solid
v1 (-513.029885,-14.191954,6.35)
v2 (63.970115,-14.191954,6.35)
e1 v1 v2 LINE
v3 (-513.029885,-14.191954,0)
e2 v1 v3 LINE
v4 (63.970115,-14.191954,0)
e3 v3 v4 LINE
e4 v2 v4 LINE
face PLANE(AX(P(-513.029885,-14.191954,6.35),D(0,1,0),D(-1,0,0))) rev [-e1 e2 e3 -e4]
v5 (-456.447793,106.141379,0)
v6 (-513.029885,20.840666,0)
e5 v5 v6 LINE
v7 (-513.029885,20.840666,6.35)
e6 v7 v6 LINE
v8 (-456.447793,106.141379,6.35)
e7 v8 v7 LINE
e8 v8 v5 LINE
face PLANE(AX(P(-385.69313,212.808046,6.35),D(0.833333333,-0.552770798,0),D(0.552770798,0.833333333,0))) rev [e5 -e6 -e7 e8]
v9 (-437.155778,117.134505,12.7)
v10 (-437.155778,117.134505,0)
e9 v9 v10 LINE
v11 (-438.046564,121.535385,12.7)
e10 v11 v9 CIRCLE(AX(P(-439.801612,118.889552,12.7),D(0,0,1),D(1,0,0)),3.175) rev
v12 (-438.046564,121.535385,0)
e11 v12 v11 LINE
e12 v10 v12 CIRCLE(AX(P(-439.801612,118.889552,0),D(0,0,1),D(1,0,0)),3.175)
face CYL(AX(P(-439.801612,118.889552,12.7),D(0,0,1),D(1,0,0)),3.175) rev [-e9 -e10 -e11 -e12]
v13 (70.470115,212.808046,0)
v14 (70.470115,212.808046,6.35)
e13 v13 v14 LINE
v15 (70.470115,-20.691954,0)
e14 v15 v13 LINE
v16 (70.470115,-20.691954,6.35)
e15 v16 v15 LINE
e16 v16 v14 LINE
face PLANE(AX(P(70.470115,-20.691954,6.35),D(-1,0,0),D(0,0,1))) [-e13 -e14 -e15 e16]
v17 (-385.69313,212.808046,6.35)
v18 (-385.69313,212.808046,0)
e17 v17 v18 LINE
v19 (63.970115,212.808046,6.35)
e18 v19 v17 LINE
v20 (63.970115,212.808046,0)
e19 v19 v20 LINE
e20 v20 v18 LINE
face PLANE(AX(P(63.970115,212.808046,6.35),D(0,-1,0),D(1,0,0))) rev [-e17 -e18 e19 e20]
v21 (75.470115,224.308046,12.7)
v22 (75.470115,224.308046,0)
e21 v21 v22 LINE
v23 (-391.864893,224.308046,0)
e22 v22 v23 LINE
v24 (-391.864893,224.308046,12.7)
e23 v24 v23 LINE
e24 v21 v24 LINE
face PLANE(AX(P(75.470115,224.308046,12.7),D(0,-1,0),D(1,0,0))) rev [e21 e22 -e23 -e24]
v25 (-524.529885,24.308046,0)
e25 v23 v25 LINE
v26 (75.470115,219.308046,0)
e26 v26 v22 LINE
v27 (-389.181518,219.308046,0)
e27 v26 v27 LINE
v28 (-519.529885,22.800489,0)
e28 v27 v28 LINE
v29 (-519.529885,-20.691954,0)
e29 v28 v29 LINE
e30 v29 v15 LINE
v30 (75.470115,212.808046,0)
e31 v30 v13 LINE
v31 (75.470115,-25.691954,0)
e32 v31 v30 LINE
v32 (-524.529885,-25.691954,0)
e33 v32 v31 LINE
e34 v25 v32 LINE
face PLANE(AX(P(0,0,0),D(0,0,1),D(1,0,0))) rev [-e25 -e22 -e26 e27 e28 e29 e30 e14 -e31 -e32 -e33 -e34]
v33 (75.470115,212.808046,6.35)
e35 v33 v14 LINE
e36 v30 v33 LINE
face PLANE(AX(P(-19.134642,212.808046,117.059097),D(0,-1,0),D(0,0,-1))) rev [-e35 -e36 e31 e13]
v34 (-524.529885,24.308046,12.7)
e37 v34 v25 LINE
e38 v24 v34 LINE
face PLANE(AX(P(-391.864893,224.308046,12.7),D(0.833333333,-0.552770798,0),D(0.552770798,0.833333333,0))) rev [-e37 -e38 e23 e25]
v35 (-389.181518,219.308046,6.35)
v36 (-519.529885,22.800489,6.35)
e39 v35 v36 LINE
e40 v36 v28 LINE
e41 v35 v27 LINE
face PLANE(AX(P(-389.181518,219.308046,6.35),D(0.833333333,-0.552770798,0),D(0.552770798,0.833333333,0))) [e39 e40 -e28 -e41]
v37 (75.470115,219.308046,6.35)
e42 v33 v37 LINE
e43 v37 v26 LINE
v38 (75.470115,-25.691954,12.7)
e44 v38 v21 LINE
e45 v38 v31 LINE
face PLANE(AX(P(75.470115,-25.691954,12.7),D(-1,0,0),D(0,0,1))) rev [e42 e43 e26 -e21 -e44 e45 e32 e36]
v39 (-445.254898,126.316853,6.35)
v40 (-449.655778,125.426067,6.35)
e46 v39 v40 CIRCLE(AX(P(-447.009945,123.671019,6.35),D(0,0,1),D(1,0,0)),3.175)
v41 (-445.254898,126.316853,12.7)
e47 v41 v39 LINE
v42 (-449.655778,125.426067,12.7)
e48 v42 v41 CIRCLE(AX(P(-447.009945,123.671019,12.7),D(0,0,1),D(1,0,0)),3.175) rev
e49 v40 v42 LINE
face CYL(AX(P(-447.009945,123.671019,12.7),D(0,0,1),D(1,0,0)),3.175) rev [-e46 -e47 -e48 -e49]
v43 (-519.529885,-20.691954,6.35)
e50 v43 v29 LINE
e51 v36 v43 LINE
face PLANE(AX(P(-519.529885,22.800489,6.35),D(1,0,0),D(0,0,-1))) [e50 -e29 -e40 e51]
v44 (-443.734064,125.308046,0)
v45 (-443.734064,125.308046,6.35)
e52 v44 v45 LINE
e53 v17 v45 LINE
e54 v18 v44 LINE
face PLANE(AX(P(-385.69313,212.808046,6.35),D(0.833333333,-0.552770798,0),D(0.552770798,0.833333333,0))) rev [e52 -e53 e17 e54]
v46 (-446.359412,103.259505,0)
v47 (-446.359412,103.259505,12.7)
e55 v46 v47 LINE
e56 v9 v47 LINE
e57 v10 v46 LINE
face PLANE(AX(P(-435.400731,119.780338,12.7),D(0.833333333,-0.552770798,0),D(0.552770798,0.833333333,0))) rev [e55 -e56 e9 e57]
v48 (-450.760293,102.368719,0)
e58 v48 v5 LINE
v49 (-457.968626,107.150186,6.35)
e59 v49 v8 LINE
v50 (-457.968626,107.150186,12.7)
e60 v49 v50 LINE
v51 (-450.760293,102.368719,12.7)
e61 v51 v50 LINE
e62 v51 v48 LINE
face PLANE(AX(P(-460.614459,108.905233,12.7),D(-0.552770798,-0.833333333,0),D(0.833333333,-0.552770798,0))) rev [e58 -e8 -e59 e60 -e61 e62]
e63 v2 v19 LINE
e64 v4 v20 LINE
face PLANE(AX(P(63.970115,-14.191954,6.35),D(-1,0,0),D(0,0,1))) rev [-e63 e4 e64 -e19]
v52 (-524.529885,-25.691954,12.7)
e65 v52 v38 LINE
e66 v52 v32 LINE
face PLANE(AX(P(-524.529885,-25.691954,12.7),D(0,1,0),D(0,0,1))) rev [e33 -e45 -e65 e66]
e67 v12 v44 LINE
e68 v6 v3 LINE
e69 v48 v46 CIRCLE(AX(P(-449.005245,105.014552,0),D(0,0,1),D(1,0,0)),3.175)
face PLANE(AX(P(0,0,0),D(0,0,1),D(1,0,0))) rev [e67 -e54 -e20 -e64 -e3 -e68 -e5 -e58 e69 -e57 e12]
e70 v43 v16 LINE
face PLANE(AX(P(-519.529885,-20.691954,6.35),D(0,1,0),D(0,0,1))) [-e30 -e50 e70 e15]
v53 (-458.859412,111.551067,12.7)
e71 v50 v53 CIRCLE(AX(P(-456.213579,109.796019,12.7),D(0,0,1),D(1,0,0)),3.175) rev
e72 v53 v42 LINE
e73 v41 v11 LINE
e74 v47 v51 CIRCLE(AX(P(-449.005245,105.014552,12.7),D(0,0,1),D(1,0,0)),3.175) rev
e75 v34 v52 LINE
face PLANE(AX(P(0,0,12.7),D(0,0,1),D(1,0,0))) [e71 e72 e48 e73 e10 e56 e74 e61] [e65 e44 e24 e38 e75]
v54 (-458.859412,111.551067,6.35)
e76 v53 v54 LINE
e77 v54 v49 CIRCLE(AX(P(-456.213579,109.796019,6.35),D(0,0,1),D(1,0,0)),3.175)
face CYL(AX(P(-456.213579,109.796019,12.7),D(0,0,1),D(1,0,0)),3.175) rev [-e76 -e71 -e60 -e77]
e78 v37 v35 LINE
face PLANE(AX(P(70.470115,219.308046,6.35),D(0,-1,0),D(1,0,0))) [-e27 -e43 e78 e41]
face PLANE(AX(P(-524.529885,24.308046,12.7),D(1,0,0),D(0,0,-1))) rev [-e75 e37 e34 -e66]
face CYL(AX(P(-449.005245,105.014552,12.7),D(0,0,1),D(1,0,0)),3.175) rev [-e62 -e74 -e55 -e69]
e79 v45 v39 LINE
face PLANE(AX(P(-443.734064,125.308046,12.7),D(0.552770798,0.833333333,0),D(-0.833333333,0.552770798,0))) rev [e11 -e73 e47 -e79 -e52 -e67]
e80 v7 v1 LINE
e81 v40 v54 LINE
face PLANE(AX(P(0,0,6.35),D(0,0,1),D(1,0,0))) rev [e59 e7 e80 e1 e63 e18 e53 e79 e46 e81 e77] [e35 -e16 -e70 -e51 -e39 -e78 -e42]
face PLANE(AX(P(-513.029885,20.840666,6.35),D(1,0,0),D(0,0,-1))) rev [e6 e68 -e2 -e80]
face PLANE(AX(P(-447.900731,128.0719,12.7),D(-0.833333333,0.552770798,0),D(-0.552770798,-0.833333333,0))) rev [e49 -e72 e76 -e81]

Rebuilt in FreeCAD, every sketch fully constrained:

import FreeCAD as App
import Part
import Sketcher
Q = App.Units.Quantity


def edges_at(feature, points):
    """Names of the edges that pass closest to the given points."""
    edges = feature.Shape.Edges
    near = lambda p: min(range(len(edges)), key=lambda i: edges[i].distToShape(Part.Vertex(*p))[0])
    return sorted({f"Edge{near(p) + 1}" for p in points})


def add_polygon(sketch, points):
    """Adds a closed chain of lines whose ends are joined by coincident constraints."""
    first, n = sketch.GeometryCount, len(points)
    for a, b in zip(points, points[1:] + points[:1]):
        sketch.addGeometry(Part.LineSegment(App.Vector(*a, 0), App.Vector(*b, 0)), False)
    for i in range(n):
        sketch.addConstraint(Sketcher.Constraint("Coincident", first + i, 2, first + (i + 1) % n, 1))

doc = App.newDocument("Part")
params = doc.addObject("Spreadsheet::Sheet", "Params")
for row, (alias, value) in enumerate([
    ("sketch1_width", "600 mm"),
    ("sketch1_height", "250 mm"),
    ("sketch1_height2", "50 mm"),
    ("sketch1_length", "240 mm"),
    ("pad1_length", "12.7 mm"),
    ("sketch2_width", "590 mm"),
    ("sketch2_width2", "577 mm"),
    ("sketch2_height", "240 mm"),
    ("sketch2_height2", "227 mm"),
    ("pocket1_length", "6.35 mm"),
    ("sketch3_length", "10 mm"),
    ("sketch3_length2", "23 mm"),
    ("sketch3_length3", "5 mm"),
    ("fillet_radius", "3.175 mm"),
    ("sketch4_height", "6.5 mm"),
    ("pocket3_length", "6.35 mm"),
], start=1):
    params.set(f"A{row}", alias)
    params.set(f"B{row}", "=" + value)
    params.setAlias(f"B{row}", alias)

body = doc.addObject("PartDesign::Body", "Body")

# Sketch on XY plane
sketch1 = doc.addObject("Sketcher::SketchObject", "Sketch")
body.addObject(sketch1)
sketch1.AttachmentSupport = (doc.XY_Plane, [""])
sketch1.MapMode = "FlatFace"
add_polygon(sketch1, [(-525, -26), (75, -26), (75, 224), (-392, 224), (-525, 24)])  # lines 0-4
sketch1.addConstraint([
    Sketcher.Constraint("Horizontal", 0),
    Sketcher.Constraint("Vertical", 1),
    Sketcher.Constraint("Horizontal", 2),
    Sketcher.Constraint("Vertical", 4),
    Sketcher.Constraint("DistanceX", 0, 1, 0, 2, Q("600 mm")),
    Sketcher.Constraint("DistanceY", 1, 1, 1, 2, Q("250 mm")),
    Sketcher.Constraint("DistanceY", 4, 2, 4, 1, Q("50 mm")),
    Sketcher.Constraint("Distance", 3, Q("240 mm")),
    Sketcher.Constraint("DistanceX", -1, 1, 0, 2, Q("75.470115 mm")),
    Sketcher.Constraint("DistanceY", 0, 2, -1, 1, Q("25.691954 mm")),
])
sketch1.setExpression("Constraints[9]", "Params.sketch1_width")
sketch1.setExpression("Constraints[10]", "Params.sketch1_height")
sketch1.setExpression("Constraints[11]", "Params.sketch1_height2")
sketch1.setExpression("Constraints[12]", "Params.sketch1_length")
pad1 = doc.addObject("PartDesign::Pad", "Pad")
body.addObject(pad1)
pad1.Profile = sketch1
pad1.setExpression("Length", "Params.pad1_length")

# Sketch on XY plane
sketch2 = doc.addObject("Sketcher::SketchObject", "Sketch001")
body.addObject(sketch2)
sketch2.AttachmentSupport = (doc.XY_Plane, [""])
sketch2.MapMode = "FlatFace"
add_polygon(sketch2, [(-520, 23), (-520, -21), (70, -21), (70, 219), (-389, 219)])  # lines 0-4
add_polygon(sketch2, [(-513, -14), (-513, 21), (-386, 213), (64, 213), (64, -14)])  # lines 5-9
sketch2.addConstraint([
    Sketcher.Constraint("Vertical", 0),
    Sketcher.Constraint("Horizontal", 1),
    Sketcher.Constraint("Vertical", 2),
    Sketcher.Constraint("Horizontal", 3),
    Sketcher.Constraint("Vertical", 5),
    Sketcher.Constraint("Horizontal", 7),
    Sketcher.Constraint("Vertical", 8),
    Sketcher.Constraint("Horizontal", 9),
    Sketcher.Constraint("Parallel", 4, 6),
    Sketcher.Constraint("DistanceX", 1, 1, 1, 2, Q("590 mm")),
    Sketcher.Constraint("DistanceX", 9, 2, 9, 1, Q("577 mm")),
    Sketcher.Constraint("DistanceY", 2, 1, 2, 2, Q("240 mm")),
    Sketcher.Constraint("DistanceY", 8, 2, 8, 1, Q("227 mm")),
    Sketcher.Constraint("DistanceX", 4, 2, 5, 2, Q("6.5 mm")),
    Sketcher.Constraint("DistanceY", 6, 2, 3, 2, Q("6.5 mm")),
    Sketcher.Constraint("DistanceY", 5, 1, 5, 2, Q("35.03262 mm")),
    Sketcher.Constraint("Distance", 4, Q("235.809068 mm")),
    Sketcher.Constraint("DistanceX", 3, 2, 3, 1, Q("459.651633 mm")),
    Sketcher.Constraint("DistanceX", 3, 2, -1, 1, Q("389.181518 mm")),
    Sketcher.Constraint("DistanceY", -1, 1, 4, 2, Q("22.800489 mm")),
])
sketch2.setExpression("Constraints[19]", "Params.sketch2_width")
sketch2.setExpression("Constraints[20]", "Params.sketch2_width2")
sketch2.setExpression("Constraints[21]", "Params.sketch2_height")
sketch2.setExpression("Constraints[22]", "Params.sketch2_height2")
pocket1 = doc.addObject("PartDesign::Pocket", "Pocket")
body.addObject(pocket1)
pocket1.Profile = sketch2
pocket1.setExpression("Length", "Params.pocket1_length")
pocket1.Reversed = True

# Sketch on XY plane
sketch3 = doc.addObject("Sketcher::SketchObject", "Sketch002")
body.addObject(sketch3)
sketch3.AttachmentSupport = (doc.XY_Plane, [""])
sketch3.MapMode = "FlatFace"
add_polygon(sketch3, [(-444, 125), (-435, 120), (-448, 101), (-456, 106), (-461, 109), (-448, 128)])  # lines 0-5
sketch3.addConstraint([
    Sketcher.Constraint("Perpendicular", 0, 1),
    Sketcher.Constraint("Perpendicular", 1, 2),
    Sketcher.Constraint("Parallel", 2, 3),
    Sketcher.Constraint("Perpendicular", 3, 4),
    Sketcher.Constraint("Perpendicular", 4, 5),
    Sketcher.Constraint("Equal", 0, 2),
    Sketcher.Constraint("Distance", 0, Q("10 mm")),
    Sketcher.Constraint("Distance", 1, Q("23 mm")),
    Sketcher.Constraint("Distance", 3, Q("5 mm")),
    Sketcher.Constraint("DistanceX", 3, 2, 1, 2, Q("12.5 mm")),
    Sketcher.Constraint("DistanceY", -1, 1, 4, 2, Q("128.0719 mm")),
    Sketcher.Constraint("DistanceX", 0, 2, -1, 1, Q("435.400731 mm")),
])
sketch3.setExpression("Constraints[12]", "Params.sketch3_length")
sketch3.setExpression("Constraints[13]", "Params.sketch3_length2")
sketch3.setExpression("Constraints[14]", "Params.sketch3_length3")
pocket2 = doc.addObject("PartDesign::Pocket", "Pocket001")
body.addObject(pocket2)
pocket2.Profile = sketch3
pocket2.Type = "ThroughAll"
pocket2.Reversed = True
doc.recompute()

fillet = doc.addObject("PartDesign::Fillet", "Fillet")
body.addObject(fillet)
fillet.Base = (pocket2, edges_at(pocket2, [
    (-447.901, 128.072, 9.525),
    (-460.614, 108.905, 9.525),
    (-435.401, 119.78, 6.35),
    (-448.114, 100.614, 6.35),
]))
fillet.setExpression("Radius", "Params.fillet_radius")

# Sketch on XY plane
sketch4 = doc.addObject("Sketcher::SketchObject", "Sketch003")
body.addObject(sketch4)
sketch4.AttachmentSupport = (doc.XY_Plane, [""])
sketch4.MapMode = "FlatFace"
add_polygon(sketch4, [(91, 219), (91, 213), (-19, 213), (-19, 219)])  # lines 0-3
sketch4.addConstraint([
    Sketcher.Constraint("Vertical", 0),
    Sketcher.Constraint("Horizontal", 1),
    Sketcher.Constraint("Vertical", 2),
    Sketcher.Constraint("Horizontal", 3),
    Sketcher.Constraint("DistanceY", 0, 2, 0, 1, Q("6.5 mm")),
    Sketcher.Constraint("DistanceX", 1, 2, 1, 1, Q("110.518117 mm")),
    Sketcher.Constraint("DistanceX", 1, 2, -1, 1, Q("19.134642 mm")),
    Sketcher.Constraint("DistanceY", -1, 1, 0, 2, Q("212.808046 mm")),
])
sketch4.setExpression("Constraints[8]", "Params.sketch4_height")
pocket3 = doc.addObject("PartDesign::Pocket", "Pocket002")
body.addObject(pocket3)
pocket3.Profile = sketch4
pocket3.setExpression("Length", "Params.pocket3_length")
pocket3.Reversed = True

doc.recompute()
